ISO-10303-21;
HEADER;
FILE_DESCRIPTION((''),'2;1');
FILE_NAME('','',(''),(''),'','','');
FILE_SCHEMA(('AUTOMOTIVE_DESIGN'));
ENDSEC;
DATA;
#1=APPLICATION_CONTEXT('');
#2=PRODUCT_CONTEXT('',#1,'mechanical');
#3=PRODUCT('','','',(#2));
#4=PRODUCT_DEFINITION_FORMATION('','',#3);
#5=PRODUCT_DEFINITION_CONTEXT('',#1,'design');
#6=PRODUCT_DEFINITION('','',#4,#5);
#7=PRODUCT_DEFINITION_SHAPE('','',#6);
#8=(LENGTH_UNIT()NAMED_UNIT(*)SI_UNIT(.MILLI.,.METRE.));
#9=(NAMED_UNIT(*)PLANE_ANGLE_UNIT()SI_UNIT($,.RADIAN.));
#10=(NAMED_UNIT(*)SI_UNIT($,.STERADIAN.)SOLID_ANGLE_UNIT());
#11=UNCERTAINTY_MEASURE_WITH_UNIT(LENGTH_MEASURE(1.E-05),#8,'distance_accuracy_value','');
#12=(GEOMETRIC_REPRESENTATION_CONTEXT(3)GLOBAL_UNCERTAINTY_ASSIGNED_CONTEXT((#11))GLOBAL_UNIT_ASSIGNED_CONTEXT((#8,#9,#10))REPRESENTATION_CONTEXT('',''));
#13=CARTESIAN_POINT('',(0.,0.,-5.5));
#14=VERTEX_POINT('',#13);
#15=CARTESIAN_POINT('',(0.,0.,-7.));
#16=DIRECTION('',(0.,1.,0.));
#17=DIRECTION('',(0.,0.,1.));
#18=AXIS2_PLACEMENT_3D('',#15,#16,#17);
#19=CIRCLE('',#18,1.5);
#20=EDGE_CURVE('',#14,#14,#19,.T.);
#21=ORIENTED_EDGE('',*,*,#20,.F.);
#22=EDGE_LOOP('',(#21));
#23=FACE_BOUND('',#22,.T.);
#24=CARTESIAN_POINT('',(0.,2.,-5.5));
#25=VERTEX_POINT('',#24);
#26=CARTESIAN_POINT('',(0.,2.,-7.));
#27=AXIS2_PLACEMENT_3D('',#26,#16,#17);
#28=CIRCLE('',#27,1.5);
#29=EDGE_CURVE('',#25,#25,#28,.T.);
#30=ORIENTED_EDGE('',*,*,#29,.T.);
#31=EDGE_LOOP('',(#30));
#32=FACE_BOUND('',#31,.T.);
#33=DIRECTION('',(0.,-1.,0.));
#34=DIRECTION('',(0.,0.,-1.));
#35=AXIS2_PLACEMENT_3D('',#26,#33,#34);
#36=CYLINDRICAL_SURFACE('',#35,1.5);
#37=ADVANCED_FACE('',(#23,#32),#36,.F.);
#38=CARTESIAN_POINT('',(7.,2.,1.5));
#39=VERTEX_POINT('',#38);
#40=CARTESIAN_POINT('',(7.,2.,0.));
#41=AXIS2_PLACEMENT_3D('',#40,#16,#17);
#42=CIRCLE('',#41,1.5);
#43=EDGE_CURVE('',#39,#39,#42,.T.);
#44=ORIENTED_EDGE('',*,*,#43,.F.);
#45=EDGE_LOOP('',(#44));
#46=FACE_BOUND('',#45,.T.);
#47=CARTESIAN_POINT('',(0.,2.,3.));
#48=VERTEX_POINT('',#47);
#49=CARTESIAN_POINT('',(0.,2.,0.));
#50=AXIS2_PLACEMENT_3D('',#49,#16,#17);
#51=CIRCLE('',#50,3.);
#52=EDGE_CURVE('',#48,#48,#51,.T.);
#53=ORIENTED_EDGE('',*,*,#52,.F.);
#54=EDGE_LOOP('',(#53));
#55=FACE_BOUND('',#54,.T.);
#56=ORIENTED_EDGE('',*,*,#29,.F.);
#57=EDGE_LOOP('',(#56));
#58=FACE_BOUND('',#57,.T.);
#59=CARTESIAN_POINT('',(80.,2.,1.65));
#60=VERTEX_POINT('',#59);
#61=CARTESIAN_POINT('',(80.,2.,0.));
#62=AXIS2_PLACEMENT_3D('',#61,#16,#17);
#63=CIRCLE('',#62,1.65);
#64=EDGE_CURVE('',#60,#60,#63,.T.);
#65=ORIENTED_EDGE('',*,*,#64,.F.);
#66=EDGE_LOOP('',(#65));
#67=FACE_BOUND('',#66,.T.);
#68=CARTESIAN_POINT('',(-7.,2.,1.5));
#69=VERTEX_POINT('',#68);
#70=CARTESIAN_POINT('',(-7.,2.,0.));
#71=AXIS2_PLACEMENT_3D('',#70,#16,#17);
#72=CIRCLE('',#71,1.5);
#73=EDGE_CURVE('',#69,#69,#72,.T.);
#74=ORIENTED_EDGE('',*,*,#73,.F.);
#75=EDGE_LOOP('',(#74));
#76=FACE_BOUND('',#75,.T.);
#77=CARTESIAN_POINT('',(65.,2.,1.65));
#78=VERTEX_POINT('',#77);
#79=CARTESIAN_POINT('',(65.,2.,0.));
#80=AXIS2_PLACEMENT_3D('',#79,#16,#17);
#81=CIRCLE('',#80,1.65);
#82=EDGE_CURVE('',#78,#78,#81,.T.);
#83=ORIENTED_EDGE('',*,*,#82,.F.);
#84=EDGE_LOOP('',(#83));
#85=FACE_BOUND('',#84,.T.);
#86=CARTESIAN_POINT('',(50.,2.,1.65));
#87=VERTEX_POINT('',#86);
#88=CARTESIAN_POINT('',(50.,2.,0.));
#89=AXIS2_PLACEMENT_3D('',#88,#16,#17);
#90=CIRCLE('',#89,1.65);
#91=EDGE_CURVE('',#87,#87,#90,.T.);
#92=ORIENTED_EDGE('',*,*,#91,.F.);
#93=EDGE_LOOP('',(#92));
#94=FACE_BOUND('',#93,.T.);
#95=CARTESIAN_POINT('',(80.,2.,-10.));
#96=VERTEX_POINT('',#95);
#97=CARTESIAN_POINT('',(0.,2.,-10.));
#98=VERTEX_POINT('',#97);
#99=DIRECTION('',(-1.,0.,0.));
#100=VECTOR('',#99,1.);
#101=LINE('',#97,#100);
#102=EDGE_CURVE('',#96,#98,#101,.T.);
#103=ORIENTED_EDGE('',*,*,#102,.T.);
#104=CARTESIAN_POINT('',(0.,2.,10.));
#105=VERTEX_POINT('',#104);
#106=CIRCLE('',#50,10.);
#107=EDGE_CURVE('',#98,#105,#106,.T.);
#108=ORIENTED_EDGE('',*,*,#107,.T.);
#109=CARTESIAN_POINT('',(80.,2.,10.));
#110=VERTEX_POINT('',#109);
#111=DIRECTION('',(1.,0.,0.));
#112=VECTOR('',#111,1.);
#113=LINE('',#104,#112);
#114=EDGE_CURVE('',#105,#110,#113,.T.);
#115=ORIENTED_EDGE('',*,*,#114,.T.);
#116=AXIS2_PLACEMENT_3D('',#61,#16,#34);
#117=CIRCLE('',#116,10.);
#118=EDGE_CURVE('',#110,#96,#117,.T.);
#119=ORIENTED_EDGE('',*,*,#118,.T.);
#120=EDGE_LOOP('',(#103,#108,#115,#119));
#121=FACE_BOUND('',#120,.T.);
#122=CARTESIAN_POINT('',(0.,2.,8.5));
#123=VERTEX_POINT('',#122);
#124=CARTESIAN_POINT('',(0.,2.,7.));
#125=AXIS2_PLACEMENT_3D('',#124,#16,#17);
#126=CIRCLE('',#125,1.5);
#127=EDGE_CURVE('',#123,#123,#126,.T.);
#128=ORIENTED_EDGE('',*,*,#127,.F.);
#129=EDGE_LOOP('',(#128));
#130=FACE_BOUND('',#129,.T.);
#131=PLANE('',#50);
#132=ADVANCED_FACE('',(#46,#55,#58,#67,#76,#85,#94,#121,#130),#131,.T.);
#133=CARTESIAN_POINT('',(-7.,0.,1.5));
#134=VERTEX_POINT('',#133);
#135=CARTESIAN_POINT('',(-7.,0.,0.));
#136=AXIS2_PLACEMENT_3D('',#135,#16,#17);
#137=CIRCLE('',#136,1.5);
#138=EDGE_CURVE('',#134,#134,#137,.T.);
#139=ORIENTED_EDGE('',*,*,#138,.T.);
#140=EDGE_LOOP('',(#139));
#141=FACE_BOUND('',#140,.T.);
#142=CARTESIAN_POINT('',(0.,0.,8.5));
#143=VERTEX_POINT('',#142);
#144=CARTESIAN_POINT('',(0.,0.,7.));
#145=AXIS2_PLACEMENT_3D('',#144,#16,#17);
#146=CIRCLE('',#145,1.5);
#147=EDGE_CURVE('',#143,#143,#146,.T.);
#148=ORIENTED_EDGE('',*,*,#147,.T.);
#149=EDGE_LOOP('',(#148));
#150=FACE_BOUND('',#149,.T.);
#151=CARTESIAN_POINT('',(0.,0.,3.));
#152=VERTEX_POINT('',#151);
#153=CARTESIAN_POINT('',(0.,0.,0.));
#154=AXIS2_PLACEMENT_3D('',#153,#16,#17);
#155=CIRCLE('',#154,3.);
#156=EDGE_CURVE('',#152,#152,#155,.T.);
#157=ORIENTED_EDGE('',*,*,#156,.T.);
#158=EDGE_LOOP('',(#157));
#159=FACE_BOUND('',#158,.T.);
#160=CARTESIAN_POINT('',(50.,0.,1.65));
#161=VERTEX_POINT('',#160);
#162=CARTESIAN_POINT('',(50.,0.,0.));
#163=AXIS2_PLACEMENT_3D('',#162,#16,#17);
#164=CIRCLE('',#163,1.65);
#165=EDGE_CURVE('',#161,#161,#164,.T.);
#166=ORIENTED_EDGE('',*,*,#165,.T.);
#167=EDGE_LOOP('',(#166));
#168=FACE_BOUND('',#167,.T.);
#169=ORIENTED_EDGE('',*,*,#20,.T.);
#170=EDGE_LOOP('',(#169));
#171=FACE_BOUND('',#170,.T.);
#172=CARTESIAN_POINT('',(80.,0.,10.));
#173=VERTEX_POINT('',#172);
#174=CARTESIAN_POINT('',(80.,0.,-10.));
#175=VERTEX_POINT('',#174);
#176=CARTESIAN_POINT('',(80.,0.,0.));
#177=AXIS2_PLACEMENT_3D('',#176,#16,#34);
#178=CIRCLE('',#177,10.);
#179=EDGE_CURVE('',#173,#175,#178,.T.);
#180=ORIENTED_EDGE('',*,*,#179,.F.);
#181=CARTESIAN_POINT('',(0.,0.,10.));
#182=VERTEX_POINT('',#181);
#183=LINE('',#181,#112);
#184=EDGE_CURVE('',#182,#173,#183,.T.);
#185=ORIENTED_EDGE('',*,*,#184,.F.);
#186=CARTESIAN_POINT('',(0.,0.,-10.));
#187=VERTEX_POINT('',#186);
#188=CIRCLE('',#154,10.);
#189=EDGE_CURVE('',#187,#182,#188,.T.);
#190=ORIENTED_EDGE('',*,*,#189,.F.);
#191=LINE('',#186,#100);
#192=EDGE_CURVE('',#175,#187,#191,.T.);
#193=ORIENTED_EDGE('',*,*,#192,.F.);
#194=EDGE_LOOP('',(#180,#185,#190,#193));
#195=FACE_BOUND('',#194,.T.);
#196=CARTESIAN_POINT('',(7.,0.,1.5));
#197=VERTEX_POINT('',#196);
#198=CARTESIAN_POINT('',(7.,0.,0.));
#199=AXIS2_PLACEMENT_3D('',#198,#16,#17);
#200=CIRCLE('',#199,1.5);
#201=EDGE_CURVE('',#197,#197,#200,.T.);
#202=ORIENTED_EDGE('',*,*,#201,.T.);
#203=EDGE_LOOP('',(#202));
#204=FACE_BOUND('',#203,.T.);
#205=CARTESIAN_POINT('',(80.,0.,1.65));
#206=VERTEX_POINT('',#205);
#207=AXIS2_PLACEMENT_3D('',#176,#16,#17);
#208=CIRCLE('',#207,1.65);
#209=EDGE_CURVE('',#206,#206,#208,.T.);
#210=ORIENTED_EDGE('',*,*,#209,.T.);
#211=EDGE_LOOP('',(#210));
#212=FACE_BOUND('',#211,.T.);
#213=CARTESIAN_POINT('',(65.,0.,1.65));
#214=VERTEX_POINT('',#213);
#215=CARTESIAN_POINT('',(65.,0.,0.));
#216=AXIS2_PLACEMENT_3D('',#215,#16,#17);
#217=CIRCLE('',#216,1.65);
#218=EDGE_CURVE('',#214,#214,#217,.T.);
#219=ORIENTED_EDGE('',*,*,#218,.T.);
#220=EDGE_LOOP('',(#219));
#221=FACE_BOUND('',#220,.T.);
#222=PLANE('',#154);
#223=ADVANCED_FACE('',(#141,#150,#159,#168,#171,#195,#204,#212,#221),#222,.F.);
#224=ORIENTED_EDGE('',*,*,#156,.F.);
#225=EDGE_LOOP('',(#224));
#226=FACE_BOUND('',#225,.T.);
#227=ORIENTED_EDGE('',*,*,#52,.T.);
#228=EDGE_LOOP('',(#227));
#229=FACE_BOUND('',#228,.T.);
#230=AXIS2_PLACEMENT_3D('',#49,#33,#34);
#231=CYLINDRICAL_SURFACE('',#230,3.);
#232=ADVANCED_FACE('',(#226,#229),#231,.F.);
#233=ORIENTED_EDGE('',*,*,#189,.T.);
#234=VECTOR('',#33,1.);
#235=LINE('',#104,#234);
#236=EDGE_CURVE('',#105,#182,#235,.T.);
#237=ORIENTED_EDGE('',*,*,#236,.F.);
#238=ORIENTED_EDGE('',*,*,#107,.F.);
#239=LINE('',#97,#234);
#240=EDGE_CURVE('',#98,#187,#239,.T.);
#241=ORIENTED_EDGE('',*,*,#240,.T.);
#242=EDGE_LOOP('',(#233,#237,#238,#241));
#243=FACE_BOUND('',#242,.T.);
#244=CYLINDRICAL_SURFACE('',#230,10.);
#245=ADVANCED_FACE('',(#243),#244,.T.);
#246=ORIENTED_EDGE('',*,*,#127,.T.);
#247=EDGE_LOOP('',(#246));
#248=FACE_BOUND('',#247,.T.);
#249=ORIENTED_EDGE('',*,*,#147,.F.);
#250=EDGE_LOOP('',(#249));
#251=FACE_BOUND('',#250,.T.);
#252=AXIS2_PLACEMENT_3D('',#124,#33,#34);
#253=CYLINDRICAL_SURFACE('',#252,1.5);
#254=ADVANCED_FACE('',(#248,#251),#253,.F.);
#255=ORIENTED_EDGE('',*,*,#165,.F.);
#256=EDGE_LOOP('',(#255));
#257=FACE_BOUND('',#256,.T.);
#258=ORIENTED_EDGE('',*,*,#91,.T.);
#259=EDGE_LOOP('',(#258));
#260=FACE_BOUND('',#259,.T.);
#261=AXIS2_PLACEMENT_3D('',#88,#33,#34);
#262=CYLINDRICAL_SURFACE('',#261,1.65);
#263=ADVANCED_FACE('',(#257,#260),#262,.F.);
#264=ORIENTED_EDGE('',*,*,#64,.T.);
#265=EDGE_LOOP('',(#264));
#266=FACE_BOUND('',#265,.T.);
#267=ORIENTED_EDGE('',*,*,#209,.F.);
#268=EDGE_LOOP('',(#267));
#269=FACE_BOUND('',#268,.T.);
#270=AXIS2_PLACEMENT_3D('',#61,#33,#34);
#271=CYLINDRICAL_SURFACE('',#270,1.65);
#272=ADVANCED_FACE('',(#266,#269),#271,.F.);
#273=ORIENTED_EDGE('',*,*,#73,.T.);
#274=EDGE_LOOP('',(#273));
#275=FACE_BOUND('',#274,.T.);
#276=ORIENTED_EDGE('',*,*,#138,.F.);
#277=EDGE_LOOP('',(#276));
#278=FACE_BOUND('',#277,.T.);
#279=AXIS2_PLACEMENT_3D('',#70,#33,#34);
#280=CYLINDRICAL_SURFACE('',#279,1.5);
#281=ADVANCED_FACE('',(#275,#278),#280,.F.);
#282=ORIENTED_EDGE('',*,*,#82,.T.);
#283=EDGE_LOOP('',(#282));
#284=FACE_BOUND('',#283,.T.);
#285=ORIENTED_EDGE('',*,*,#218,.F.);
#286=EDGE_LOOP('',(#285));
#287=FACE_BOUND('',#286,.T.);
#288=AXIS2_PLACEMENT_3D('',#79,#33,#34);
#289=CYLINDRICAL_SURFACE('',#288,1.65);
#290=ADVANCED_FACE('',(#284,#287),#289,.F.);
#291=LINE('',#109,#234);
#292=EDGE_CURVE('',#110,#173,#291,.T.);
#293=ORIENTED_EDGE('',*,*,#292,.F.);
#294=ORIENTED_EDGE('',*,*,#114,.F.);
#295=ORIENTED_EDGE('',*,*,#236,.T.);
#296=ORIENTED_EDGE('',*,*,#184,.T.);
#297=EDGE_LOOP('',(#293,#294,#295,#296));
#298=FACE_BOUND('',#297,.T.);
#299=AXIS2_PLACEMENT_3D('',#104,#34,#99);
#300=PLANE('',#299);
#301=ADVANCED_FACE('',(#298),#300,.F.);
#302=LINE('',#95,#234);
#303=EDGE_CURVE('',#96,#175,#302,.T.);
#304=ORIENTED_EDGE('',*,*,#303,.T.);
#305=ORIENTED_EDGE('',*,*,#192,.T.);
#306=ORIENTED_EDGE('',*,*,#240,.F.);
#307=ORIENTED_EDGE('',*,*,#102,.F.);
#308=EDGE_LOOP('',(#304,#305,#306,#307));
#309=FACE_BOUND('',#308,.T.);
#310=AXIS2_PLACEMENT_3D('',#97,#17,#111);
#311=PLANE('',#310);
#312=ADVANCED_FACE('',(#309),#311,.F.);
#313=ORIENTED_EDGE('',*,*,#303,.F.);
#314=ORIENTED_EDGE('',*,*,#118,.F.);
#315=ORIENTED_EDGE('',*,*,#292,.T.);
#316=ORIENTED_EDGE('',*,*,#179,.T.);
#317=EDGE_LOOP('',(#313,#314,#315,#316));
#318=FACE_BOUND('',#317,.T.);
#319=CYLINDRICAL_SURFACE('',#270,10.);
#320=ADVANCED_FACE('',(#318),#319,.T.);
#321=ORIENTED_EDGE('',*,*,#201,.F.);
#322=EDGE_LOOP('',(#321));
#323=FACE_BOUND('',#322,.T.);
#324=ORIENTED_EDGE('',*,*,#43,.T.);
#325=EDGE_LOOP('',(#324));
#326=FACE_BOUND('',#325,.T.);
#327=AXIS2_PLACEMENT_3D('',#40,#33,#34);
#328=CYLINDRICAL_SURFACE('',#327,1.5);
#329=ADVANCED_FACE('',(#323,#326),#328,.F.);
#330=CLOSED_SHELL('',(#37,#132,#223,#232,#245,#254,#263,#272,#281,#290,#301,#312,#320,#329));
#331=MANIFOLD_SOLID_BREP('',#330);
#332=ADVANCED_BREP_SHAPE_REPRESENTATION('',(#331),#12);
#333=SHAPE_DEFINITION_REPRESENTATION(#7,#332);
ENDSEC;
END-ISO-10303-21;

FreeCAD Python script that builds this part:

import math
import FreeCAD as App
import Part
import Sketcher

V = App.Vector
Q = App.Units.Quantity

doc = App.newDocument("Part")
params = doc.addObject("Spreadsheet::Sheet", "Params")
for row, (alias, value) in enumerate([
    ("sketch1_diameter", "3 mm"),
    ("sketch1_diameter2", "6 mm"),
    ("sketch1_radius", "10 mm"),
    ("sketch1_diameter3", "3.3 mm"),
    ("sketch1_width", "80 mm"),
    ("pad1_length", "2 mm"),
], start=1):
    params.set(f"A{row}", alias)
    params.set(f"B{row}", "=" + value)
    params.setAlias(f"B{row}", alias)

body = doc.addObject("PartDesign::Body", "Body")

# Sketch on XZ plane
sketch1 = body.newObject("Sketcher::SketchObject", "Sketch")
sketch1.AttachmentSupport = (doc.getObject("XZ_Plane"), [""])
sketch1.MapMode = "FlatFace"
sketch1.addGeometry(Part.LineSegment(V(80, -10, 0), V(0, -10, 0)), False)
sketch1.addGeometry(Part.ArcOfCircle(Part.Circle(V(0, 0, 0), V(0, 0, 1), 10), math.radians(90), math.radians(270)), False)
sketch1.addGeometry(Part.LineSegment(V(0, 10, 0), V(80, 10, 0)), False)
sketch1.addGeometry(Part.ArcOfCircle(Part.Circle(V(80, 0, 0), V(0, 0, 1), 10), math.radians(-90), math.radians(90)), False)
sketch1.addGeometry(Part.Circle(V(0, 7, 0), V(0, 0, 1), 1.5), False)
sketch1.addGeometry(Part.Circle(V(80, 0, 0), V(0, 0, 1), 1.65), False)
sketch1.addGeometry(Part.Circle(V(65, 0, 0), V(0, 0, 1), 1.65), False)
sketch1.addGeometry(Part.Circle(V(50, 0, 0), V(0, 0, 1), 1.65), False)
sketch1.addGeometry(Part.Circle(V(7, 0, 0), V(0, 0, 1), 1.5), False)
sketch1.addGeometry(Part.Circle(V(0, 0, 0), V(0, 0, 1), 3), False)
sketch1.addGeometry(Part.Circle(V(-7, 0, 0), V(0, 0, 1), 1.5), False)
sketch1.addGeometry(Part.Circle(V(0, -7, 0), V(0, 0, 1), 1.5), False)
sketch1.addConstraint(Sketcher.Constraint("Tangent", 0, 2, 1, 2))
sketch1.addConstraint(Sketcher.Constraint("Tangent", 1, 1, 2, 1))
sketch1.addConstraint(Sketcher.Constraint("Tangent", 2, 2, 3, 2))
sketch1.addConstraint(Sketcher.Constraint("Tangent", 3, 1, 0, 1))
sketch1.addConstraint(Sketcher.Constraint("Horizontal", 0))
sketch1.addConstraint(Sketcher.Constraint("Horizontal", 2))
sketch1.addConstraint(Sketcher.Constraint("Coincident", 1, 3, -1, 1))
sketch1.addConstraint(Sketcher.Constraint("Coincident", 9, 3, -1, 1))
sketch1.addConstraint(Sketcher.Constraint("Coincident", 5, 3, 3, 3))
sketch1.addConstraint(Sketcher.Constraint("Equal", 5, 6))
sketch1.addConstraint(Sketcher.Constraint("Equal", 6, 7))
sketch1.addConstraint(Sketcher.Constraint("Equal", 4, 8))
sketch1.addConstraint(Sketcher.Constraint("Equal", 8, 10))
sketch1.addConstraint(Sketcher.Constraint("Equal", 10, 11))
sketch1.addConstraint(Sketcher.Constraint("Symmetric", 8, 3, 10, 3, -1, 1))
sketch1.addConstraint(Sketcher.Constraint("Symmetric", 4, 3, 11, 3, -1, 1))
sketch1.addConstraint(Sketcher.Constraint("PointOnObject", 4, 3, -2))
sketch1.addConstraint(Sketcher.Constraint("PointOnObject", 6, 3, -1))
sketch1.addConstraint(Sketcher.Constraint("PointOnObject", 7, 3, -1))
sketch1.addConstraint(Sketcher.Constraint("PointOnObject", 8, 3, -1))
sketch1.addConstraint(Sketcher.Constraint("Diameter", 4, Q("3 mm")))
sketch1.addConstraint(Sketcher.Constraint("Diameter", 9, Q("6 mm")))
sketch1.addConstraint(Sketcher.Constraint("Radius", 1, Q("10 mm")))
sketch1.addConstraint(Sketcher.Constraint("Diameter", 5, Q("3.3 mm")))
sketch1.addConstraint(Sketcher.Constraint("DistanceX", 0, 2, 0, 1, Q("80 mm")))
sketch1.addConstraint(Sketcher.Constraint("DistanceY", -1, 1, 4, 3, Q("7 mm")))
sketch1.addConstraint(Sketcher.Constraint("DistanceX", -1, 1, 6, 3, Q("65 mm")))
sketch1.addConstraint(Sketcher.Constraint("DistanceX", -1, 1, 7, 3, Q("50 mm")))
sketch1.addConstraint(Sketcher.Constraint("DistanceX", -1, 1, 8, 3, Q("7 mm")))
sketch1.setExpression("Constraints[20]", "Params.sketch1_diameter")
sketch1.setExpression("Constraints[21]", "Params.sketch1_diameter2")
sketch1.setExpression("Constraints[22]", "Params.sketch1_radius")
sketch1.setExpression("Constraints[23]", "Params.sketch1_diameter3")
sketch1.setExpression("Constraints[24]", "Params.sketch1_width")
pad1 = body.newObject("PartDesign::Pad", "Pad")
pad1.Profile = sketch1
pad1.setExpression("Length", "Params.pad1_length")
pad1.Reversed = True

doc.recompute()
